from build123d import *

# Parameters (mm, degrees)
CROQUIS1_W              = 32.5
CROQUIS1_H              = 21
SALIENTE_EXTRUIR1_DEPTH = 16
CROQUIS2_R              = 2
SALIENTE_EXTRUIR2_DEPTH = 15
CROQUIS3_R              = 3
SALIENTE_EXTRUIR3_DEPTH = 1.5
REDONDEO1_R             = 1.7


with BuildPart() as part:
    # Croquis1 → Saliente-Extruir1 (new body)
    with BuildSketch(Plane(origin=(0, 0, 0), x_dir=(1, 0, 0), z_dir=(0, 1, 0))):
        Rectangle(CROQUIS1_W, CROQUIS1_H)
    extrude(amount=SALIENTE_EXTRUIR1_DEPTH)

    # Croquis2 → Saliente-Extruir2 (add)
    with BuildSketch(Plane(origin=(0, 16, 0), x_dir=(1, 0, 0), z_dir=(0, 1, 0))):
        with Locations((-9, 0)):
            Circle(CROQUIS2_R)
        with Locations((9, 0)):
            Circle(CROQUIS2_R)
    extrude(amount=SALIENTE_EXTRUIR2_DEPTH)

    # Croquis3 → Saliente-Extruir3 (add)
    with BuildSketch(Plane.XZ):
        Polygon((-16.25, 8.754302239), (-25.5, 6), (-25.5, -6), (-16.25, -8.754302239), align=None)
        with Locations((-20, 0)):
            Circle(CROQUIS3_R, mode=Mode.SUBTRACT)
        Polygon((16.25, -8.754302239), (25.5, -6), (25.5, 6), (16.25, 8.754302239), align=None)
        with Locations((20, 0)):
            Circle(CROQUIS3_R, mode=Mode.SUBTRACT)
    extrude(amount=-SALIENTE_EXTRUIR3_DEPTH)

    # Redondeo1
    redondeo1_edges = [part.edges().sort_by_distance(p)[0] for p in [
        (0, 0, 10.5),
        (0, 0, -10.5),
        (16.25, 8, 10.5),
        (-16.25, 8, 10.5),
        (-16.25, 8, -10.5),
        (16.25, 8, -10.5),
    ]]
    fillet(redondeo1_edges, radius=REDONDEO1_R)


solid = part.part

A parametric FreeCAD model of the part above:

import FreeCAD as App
import Part
import Sketcher

V = App.Vector
Q = App.Units.Quantity


def edges_at(feature, points):
    """Names of the edges that pass closest to the given points."""
    edges = feature.Shape.Edges
    near = lambda p: min(range(len(edges)), key=lambda i: edges[i].distToShape(Part.Vertex(*p))[0])
    return sorted({f"Edge{near(p) + 1}" for p in points})

doc = App.newDocument("Part")
params = doc.addObject("Spreadsheet::Sheet", "Params")
for row, (alias, value) in enumerate([
    ("sketch1_height", "21 mm"),
    ("sketch1_width", "32.5 mm"),
    ("pad1_length", "16 mm"),
    ("sketch2_diameter", "4 mm"),
    ("pad2_length", "15 mm"),
    ("sketch3_diameter", "6 mm"),
    ("sketch3_height", "12 mm"),
    ("pad3_length", "1.5 mm"),
    ("fillet_radius", "1.7 mm"),
], start=1):
    params.set(f"A{row}", alias)
    params.set(f"B{row}", "=" + value)
    params.setAlias(f"B{row}", alias)

body = doc.addObject("PartDesign::Body", "Body")

# Sketch on XZ plane
sketch1 = body.newObject("Sketcher::SketchObject", "Sketch")
sketch1.AttachmentSupport = (doc.getObject("XZ_Plane"), [""])
sketch1.MapMode = "FlatFace"
sketch1.addGeometry(Part.LineSegment(V(-16, -10, 0), V(-16, 10, 0)), False)
sketch1.addGeometry(Part.LineSegment(V(-16, 10, 0), V(16, 10, 0)), False)
sketch1.addGeometry(Part.LineSegment(V(16, 10, 0), V(16, -10, 0)), False)
sketch1.addGeometry(Part.LineSegment(V(16, -10, 0), V(-16, -10, 0)), False)
sketch1.addConstraint(Sketcher.Constraint("Coincident", 0, 2, 1, 1))
sketch1.addConstraint(Sketcher.Constraint("Coincident", 1, 2, 2, 1))
sketch1.addConstraint(Sketcher.Constraint("Coincident", 2, 2, 3, 1))
sketch1.addConstraint(Sketcher.Constraint("Coincident", 3, 2, 0, 1))
sketch1.addConstraint(Sketcher.Constraint("Vertical", 0))
sketch1.addConstraint(Sketcher.Constraint("Horizontal", 1))
sketch1.addConstraint(Sketcher.Constraint("Vertical", 2))
sketch1.addConstraint(Sketcher.Constraint("Horizontal", 3))
sketch1.addConstraint(Sketcher.Constraint("Symmetric", 0, 2, 2, 2, -1, 1))
sketch1.addConstraint(Sketcher.Constraint("DistanceY", 0, 1, 0, 2, Q("21 mm")))
sketch1.addConstraint(Sketcher.Constraint("DistanceX", 1, 1, 1, 2, Q("32.5 mm")))
sketch1.setExpression("Constraints[9]", "Params.sketch1_height")
sketch1.setExpression("Constraints[10]", "Params.sketch1_width")
pad1 = body.newObject("PartDesign::Pad", "Pad")
pad1.Profile = sketch1
pad1.setExpression("Length", "Params.pad1_length")
pad1.Reversed = True

# Sketch on XZ plane
sketch2 = body.newObject("Sketcher::SketchObject", "Sketch001")
sketch2.AttachmentSupport = (doc.getObject("XZ_Plane"), [""])
sketch2.MapMode = "FlatFace"
sketch2.AttachmentOffset = App.Placement(V(0, 0, -16), App.Rotation())
sketch2.addGeometry(Part.Circle(V(-9, 0, 0), V(0, 0, 1), 2), False)
sketch2.addGeometry(Part.Circle(V(9, 0, 0), V(0, 0, 1), 2), False)
sketch2.addConstraint(Sketcher.Constraint("Equal", 0, 1))
sketch2.addConstraint(Sketcher.Constraint("Symmetric", 0, 3, 1, 3, -1, 1))
sketch2.addConstraint(Sketcher.Constraint("PointOnObject", 0, 3, -1))
sketch2.addConstraint(Sketcher.Constraint("Diameter", 0, Q("4 mm")))
sketch2.addConstraint(Sketcher.Constraint("DistanceX", 0, 3, -1, 1, Q("9 mm")))
sketch2.setExpression("Constraints[3]", "Params.sketch2_diameter")
pad2 = body.newObject("PartDesign::Pad", "Pad001")
pad2.Profile = sketch2
pad2.setExpression("Length", "Params.pad2_length")
pad2.Reversed = True

# Sketch on XZ plane
sketch3 = body.newObject("Sketcher::SketchObject", "Sketch002")
sketch3.AttachmentSupport = (doc.getObject("XZ_Plane"), [""])
sketch3.MapMode = "FlatFace"
sketch3.addGeometry(Part.LineSegment(V(-16.2, 8.8, 0), V(-25.5, 6, 0)), False)
sketch3.addGeometry(Part.LineSegment(V(-25.5, 6, 0), V(-25.5, -6, 0)), False)
sketch3.addGeometry(Part.LineSegment(V(-25.5, -6, 0), V(-16.2, -8.8, 0)), False)
sketch3.addGeometry(Part.LineSegment(V(-16.2, -8.8, 0), V(-16.2, 8.8, 0)), False)
sketch3.addGeometry(Part.Circle(V(-20, 0, 0), V(0, 0, 1), 3), False)
sketch3.addGeometry(Part.LineSegment(V(16.2, -8.8, 0), V(25.5, -6, 0)), False)
sketch3.addGeometry(Part.LineSegment(V(25.5, -6, 0), V(25.5, 6, 0)), False)
sketch3.addGeometry(Part.LineSegment(V(25.5, 6, 0), V(16.2, 8.8, 0)), False)
sketch3.addGeometry(Part.LineSegment(V(16.2, 8.8, 0), V(16.2, -8.8, 0)), False)
sketch3.addGeometry(Part.Circle(V(20, 0, 0), V(0, 0, 1), 3), False)
sketch3.addConstraint(Sketcher.Constraint("Coincident", 0, 2, 1, 1))
sketch3.addConstraint(Sketcher.Constraint("Coincident", 1, 2, 2, 1))
sketch3.addConstraint(Sketcher.Constraint("Coincident", 2, 2, 3, 1))
sketch3.addConstraint(Sketcher.Constraint("Coincident", 3, 2, 0, 1))
sketch3.addConstraint(Sketcher.Constraint("Coincident", 5, 2, 6, 1))
sketch3.addConstraint(Sketcher.Constraint("Coincident", 6, 2, 7, 1))
sketch3.addConstraint(Sketcher.Constraint("Coincident", 7, 2, 8, 1))
sketch3.addConstraint(Sketcher.Constraint("Coincident", 8, 2, 5, 1))
sketch3.addConstraint(Sketcher.Constraint("Vertical", 1))
sketch3.addConstraint(Sketcher.Constraint("Vertical", 3))
sketch3.addConstraint(Sketcher.Constraint("Vertical", 6))
sketch3.addConstraint(Sketcher.Constraint("Vertical", 8))
sketch3.addConstraint(Sketcher.Constraint("Equal", 4, 9))
sketch3.addConstraint(Sketcher.Constraint("Symmetric", 4, 3, 9, 3, -1, 1))
sketch3.addConstraint(Sketcher.Constraint("Symmetric", 0, 2, 5, 2, -1, 1))
sketch3.addConstraint(Sketcher.Constraint("Symmetric", 2, 2, 7, 2, -1, 1))
sketch3.addConstraint(Sketcher.Constraint("PointOnObject", 4, 3, -1))
sketch3.addConstraint(Sketcher.Constraint("Parallel", 0, 5))
sketch3.addConstraint(Sketcher.Constraint("Parallel", 2, 7))
sketch3.addConstraint(Sketcher.Constraint("Horizontal", 1, 2, 5, 2))
sketch3.addConstraint(Sketcher.Constraint("Horizontal", 3, 2, 7, 2))
sketch3.addConstraint(Sketcher.Constraint("Diameter", 4, Q("6 mm")))
sketch3.addConstraint(Sketcher.Constraint("DistanceY", 1, 2, 1, 1, Q("12 mm")))
sketch3.addConstraint(Sketcher.Constraint("DistanceX", 4, 3, -1, 1, Q("20 mm")))
sketch3.addConstraint(Sketcher.Constraint("DistanceX", 1, 2, 5, 2, Q("51 mm")))
sketch3.addConstraint(Sketcher.Constraint("DistanceX", 3, 2, 7, 2, Q("32.5 mm")))
sketch3.addConstraint(Sketcher.Constraint("DistanceY", 3, 1, 3, 2, Q("17.508604 mm")))
sketch3.setExpression("Constraints[21]", "Params.sketch3_diameter")
sketch3.setExpression("Constraints[22]", "Params.sketch3_height")
pad3 = body.newObject("PartDesign::Pad", "Pad002")
pad3.Profile = sketch3
pad3.setExpression("Length", "Params.pad3_length")
pad3.Reversed = True
doc.recompute()

fillet = body.newObject("PartDesign::Fillet", "Fillet")
fillet.Base = (pad3, edges_at(pad3, [
    (0, 0, 10.5),
    (0, 0, -10.5),
    (16.25, 8, 10.5),
    (-16.25, 8, 10.5),
    (-16.25, 8, -10.5),
    (16.25, 8, -10.5),
]))
fillet.setExpression("Radius", "Params.fillet_radius")

doc.recompute()
